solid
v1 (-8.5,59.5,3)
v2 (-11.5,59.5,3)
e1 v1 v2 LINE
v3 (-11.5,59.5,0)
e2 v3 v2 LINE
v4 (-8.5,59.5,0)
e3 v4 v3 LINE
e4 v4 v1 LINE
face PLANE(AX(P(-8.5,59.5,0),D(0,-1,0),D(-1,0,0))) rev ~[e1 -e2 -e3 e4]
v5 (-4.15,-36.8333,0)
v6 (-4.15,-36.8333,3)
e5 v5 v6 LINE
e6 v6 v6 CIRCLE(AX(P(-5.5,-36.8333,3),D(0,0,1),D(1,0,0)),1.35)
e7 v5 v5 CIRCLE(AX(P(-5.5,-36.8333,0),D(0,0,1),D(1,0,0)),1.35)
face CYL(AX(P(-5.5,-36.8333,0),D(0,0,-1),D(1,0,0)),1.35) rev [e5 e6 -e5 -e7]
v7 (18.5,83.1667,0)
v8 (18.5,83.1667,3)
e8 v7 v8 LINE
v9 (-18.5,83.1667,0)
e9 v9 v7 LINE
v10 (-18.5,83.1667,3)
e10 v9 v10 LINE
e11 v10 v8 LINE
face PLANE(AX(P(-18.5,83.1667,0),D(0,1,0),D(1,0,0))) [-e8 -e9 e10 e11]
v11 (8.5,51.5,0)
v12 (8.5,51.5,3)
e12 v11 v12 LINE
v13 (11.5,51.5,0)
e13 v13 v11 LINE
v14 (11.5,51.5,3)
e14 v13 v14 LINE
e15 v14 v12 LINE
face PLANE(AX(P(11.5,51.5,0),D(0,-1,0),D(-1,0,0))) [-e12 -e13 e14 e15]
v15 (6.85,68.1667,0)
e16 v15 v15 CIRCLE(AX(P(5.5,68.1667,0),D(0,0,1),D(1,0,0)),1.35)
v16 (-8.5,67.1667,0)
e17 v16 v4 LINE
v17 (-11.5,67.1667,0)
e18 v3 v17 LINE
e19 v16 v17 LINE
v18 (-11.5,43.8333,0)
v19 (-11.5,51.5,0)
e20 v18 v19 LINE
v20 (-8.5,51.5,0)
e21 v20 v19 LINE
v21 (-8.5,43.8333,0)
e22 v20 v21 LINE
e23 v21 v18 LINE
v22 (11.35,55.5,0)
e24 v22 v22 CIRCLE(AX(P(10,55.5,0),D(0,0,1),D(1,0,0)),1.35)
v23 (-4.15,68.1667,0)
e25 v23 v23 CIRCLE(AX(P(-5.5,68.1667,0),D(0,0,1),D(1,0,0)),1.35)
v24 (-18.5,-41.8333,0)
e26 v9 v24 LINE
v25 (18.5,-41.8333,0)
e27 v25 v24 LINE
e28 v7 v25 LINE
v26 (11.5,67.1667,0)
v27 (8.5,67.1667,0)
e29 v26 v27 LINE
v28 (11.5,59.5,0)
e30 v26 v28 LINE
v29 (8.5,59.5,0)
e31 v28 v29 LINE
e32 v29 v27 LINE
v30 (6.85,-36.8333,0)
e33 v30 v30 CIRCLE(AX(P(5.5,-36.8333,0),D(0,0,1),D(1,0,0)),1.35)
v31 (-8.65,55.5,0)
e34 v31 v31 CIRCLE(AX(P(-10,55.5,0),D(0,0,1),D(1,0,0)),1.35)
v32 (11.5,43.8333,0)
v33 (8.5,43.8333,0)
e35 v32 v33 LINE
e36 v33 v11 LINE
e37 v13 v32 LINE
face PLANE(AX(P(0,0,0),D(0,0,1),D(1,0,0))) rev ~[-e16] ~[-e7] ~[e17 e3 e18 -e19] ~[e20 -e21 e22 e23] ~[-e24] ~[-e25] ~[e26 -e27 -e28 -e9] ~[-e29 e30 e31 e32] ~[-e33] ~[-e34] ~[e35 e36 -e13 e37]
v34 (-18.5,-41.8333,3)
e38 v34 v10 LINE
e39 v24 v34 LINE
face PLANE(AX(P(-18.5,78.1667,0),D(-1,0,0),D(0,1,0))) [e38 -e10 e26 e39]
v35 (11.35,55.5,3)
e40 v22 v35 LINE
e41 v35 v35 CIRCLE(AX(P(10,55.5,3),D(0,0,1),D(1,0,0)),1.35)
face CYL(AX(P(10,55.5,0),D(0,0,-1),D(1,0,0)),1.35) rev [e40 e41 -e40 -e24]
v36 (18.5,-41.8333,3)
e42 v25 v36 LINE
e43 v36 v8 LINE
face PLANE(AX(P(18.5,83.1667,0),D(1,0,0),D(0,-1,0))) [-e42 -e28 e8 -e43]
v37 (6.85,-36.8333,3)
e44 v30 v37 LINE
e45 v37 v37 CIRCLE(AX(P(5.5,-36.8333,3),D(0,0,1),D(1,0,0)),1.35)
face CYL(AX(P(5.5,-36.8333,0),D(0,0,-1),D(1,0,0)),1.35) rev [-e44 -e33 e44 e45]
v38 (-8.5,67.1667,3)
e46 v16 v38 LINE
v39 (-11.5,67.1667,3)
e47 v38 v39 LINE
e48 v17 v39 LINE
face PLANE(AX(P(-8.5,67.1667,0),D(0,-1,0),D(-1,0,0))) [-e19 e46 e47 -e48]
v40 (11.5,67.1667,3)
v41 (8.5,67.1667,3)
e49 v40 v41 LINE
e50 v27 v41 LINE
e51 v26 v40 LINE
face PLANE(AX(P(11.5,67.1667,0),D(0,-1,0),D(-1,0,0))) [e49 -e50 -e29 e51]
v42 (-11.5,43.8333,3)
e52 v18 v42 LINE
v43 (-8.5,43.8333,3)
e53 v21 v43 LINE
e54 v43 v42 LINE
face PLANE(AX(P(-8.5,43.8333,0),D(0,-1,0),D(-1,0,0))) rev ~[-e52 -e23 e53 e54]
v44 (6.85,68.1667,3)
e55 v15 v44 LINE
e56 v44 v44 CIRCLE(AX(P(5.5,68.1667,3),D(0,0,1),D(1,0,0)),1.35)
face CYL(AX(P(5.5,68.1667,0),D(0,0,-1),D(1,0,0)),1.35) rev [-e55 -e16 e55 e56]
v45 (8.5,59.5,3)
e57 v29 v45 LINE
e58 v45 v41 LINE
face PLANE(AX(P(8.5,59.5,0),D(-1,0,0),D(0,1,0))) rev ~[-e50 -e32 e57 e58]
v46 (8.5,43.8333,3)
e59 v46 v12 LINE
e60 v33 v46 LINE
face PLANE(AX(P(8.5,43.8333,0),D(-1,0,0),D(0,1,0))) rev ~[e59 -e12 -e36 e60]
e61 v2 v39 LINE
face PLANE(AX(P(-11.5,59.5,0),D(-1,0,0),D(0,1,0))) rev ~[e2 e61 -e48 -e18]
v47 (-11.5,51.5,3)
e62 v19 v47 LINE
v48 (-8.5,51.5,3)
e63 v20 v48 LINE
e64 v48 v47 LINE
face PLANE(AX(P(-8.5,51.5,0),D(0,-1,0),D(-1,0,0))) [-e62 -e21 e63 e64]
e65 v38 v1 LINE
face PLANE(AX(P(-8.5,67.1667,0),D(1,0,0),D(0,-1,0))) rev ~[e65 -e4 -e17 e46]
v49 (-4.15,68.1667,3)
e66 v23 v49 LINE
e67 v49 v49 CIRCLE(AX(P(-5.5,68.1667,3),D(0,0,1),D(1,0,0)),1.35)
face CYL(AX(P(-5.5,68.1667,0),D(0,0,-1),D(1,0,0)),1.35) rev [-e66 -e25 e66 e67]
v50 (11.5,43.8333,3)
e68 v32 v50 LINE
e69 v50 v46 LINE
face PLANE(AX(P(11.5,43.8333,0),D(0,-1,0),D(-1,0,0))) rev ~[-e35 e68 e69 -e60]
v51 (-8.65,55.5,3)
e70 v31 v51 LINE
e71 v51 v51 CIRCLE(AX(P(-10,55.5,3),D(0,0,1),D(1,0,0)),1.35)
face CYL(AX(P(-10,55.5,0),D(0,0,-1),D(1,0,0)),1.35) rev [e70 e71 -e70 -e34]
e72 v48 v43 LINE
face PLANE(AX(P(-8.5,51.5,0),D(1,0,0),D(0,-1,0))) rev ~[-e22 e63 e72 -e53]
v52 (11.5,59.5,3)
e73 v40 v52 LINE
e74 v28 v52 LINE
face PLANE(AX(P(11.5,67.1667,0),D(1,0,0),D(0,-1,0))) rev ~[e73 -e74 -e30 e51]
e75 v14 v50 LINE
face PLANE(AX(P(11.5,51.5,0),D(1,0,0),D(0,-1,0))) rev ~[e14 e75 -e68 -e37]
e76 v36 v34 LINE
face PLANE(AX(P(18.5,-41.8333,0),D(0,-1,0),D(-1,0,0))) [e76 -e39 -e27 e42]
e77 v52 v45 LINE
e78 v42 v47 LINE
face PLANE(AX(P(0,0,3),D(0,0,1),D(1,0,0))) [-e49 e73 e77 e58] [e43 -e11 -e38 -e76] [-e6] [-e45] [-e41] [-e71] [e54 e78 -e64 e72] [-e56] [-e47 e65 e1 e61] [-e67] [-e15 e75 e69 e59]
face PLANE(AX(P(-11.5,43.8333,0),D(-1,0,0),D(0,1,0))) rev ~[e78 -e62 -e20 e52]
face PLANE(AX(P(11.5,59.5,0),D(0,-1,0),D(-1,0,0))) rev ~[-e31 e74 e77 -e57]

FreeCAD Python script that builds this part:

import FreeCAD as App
import Part
import Sketcher

V = App.Vector
Q = App.Units.Quantity

doc = App.newDocument("Part")
params = doc.addObject("Spreadsheet::Sheet", "Params")
for row, (alias, value) in enumerate([
    ("sketch1_diameter", "2.7 mm"),
    ("sketch1_width", "37 mm"),
    ("sketch1_width2", "3 mm"),
    ("sketch1_height", "125 mm"),
    ("pad1_length", "3 mm"),
], start=1):
    params.set(f"A{row}", alias)
    params.set(f"B{row}", "=" + value)
    params.setAlias(f"B{row}", alias)

body = doc.addObject("PartDesign::Body", "Body")

sketch1 = body.newObject("Sketcher::SketchObject", "Sketch")
sketch1.AttachmentSupport = (doc.getObject("XY_Plane"), [""])
sketch1.MapMode = "FlatFace"
sketch1.addGeometry(Part.LineSegment(V(-18.5, 83.2, 0), V(-18.5, -41.8, 0)), False)
sketch1.addGeometry(Part.LineSegment(V(-18.5, -41.8, 0), V(18.5, -41.8, 0)), False)
sketch1.addGeometry(Part.LineSegment(V(18.5, -41.8, 0), V(18.5, 83.2, 0)), False)
sketch1.addGeometry(Part.LineSegment(V(18.5, 83.2, 0), V(-18.5, 83.2, 0)), False)
sketch1.addGeometry(Part.LineSegment(V(11.5, 67.2, 0), V(11.5, 59.5, 0)), False)
sketch1.addGeometry(Part.LineSegment(V(11.5, 59.5, 0), V(8.5, 59.5, 0)), False)
sketch1.addGeometry(Part.LineSegment(V(8.5, 59.5, 0), V(8.5, 67.2, 0)), False)
sketch1.addGeometry(Part.LineSegment(V(8.5, 67.2, 0), V(11.5, 67.2, 0)), False)
sketch1.addGeometry(Part.Circle(V(-5.5, -36.8, 0), V(0, 0, 1), 1.4), False)
sketch1.addGeometry(Part.Circle(V(5.5, -36.8, 0), V(0, 0, 1), 1.4), False)
sketch1.addGeometry(Part.LineSegment(V(-11.5, 51.5, 0), V(-8.5, 51.5, 0)), False)
sketch1.addGeometry(Part.LineSegment(V(-8.5, 51.5, 0), V(-8.5, 43.8, 0)), False)
sketch1.addGeometry(Part.LineSegment(V(-8.5, 43.8, 0), V(-11.5, 43.8, 0)), False)
sketch1.addGeometry(Part.LineSegment(V(-11.5, 43.8, 0), V(-11.5, 51.5, 0)), False)
sketch1.addGeometry(Part.Circle(V(-10, 55.5, 0), V(0, 0, 1), 1.4), False)
sketch1.addGeometry(Part.LineSegment(V(-11.5, 67.2, 0), V(-8.5, 67.2, 0)), False)
sketch1.addGeometry(Part.LineSegment(V(-8.5, 67.2, 0), V(-8.5, 59.5, 0)), False)
sketch1.addGeometry(Part.LineSegment(V(-8.5, 59.5, 0), V(-11.5, 59.5, 0)), False)
sketch1.addGeometry(Part.LineSegment(V(-11.5, 59.5, 0), V(-11.5, 67.2, 0)), False)
sketch1.addGeometry(Part.Circle(V(-5.5, 68.2, 0), V(0, 0, 1), 1.4), False)
sketch1.addGeometry(Part.LineSegment(V(8.5, 51.5, 0), V(11.5, 51.5, 0)), False)
sketch1.addGeometry(Part.LineSegment(V(11.5, 51.5, 0), V(11.5, 43.8, 0)), False)
sketch1.addGeometry(Part.LineSegment(V(11.5, 43.8, 0), V(8.5, 43.8, 0)), False)
sketch1.addGeometry(Part.LineSegment(V(8.5, 43.8, 0), V(8.5, 51.5, 0)), False)
sketch1.addGeometry(Part.Circle(V(5.5, 68.2, 0), V(0, 0, 1), 1.4), False)
sketch1.addGeometry(Part.Circle(V(10, 55.5, 0), V(0, 0, 1), 1.4), False)
sketch1.addConstraint(Sketcher.Constraint("Coincident", 0, 2, 1, 1))
sketch1.addConstraint(Sketcher.Constraint("Coincident", 1, 2, 2, 1))
sketch1.addConstraint(Sketcher.Constraint("Coincident", 2, 2, 3, 1))
sketch1.addConstraint(Sketcher.Constraint("Coincident", 3, 2, 0, 1))
sketch1.addConstraint(Sketcher.Constraint("Coincident", 4, 2, 5, 1))
sketch1.addConstraint(Sketcher.Constraint("Coincident", 5, 2, 6, 1))
sketch1.addConstraint(Sketcher.Constraint("Coincident", 6, 2, 7, 1))
sketch1.addConstraint(Sketcher.Constraint("Coincident", 7, 2, 4, 1))
sketch1.addConstraint(Sketcher.Constraint("Coincident", 10, 2, 11, 1))
sketch1.addConstraint(Sketcher.Constraint("Coincident", 11, 2, 12, 1))
sketch1.addConstraint(Sketcher.Constraint("Coincident", 12, 2, 13, 1))
sketch1.addConstraint(Sketcher.Constraint("Coincident", 13, 2, 10, 1))
sketch1.addConstraint(Sketcher.Constraint("Coincident", 15, 2, 16, 1))
sketch1.addConstraint(Sketcher.Constraint("Coincident", 16, 2, 17, 1))
sketch1.addConstraint(Sketcher.Constraint("Coincident", 17, 2, 18, 1))
sketch1.addConstraint(Sketcher.Constraint("Coincident", 18, 2, 15, 1))
sketch1.addConstraint(Sketcher.Constraint("Coincident", 20, 2, 21, 1))
sketch1.addConstraint(Sketcher.Constraint("Coincident", 21, 2, 22, 1))
sketch1.addConstraint(Sketcher.Constraint("Coincident", 22, 2, 23, 1))
sketch1.addConstraint(Sketcher.Constraint("Coincident", 23, 2, 20, 1))
sketch1.addConstraint(Sketcher.Constraint("Vertical", 0))
sketch1.addConstraint(Sketcher.Constraint("Horizontal", 1))
sketch1.addConstraint(Sketcher.Constraint("Vertical", 2))
sketch1.addConstraint(Sketcher.Constraint("Horizontal", 3))
sketch1.addConstraint(Sketcher.Constraint("Vertical", 4))
sketch1.addConstraint(Sketcher.Constraint("Horizontal", 5))
sketch1.addConstraint(Sketcher.Constraint("Vertical", 6))
sketch1.addConstraint(Sketcher.Constraint("Horizontal", 7))
sketch1.addConstraint(Sketcher.Constraint("Horizontal", 10))
sketch1.addConstraint(Sketcher.Constraint("Vertical", 11))
sketch1.addConstraint(Sketcher.Constraint("Horizontal", 12))
sketch1.addConstraint(Sketcher.Constraint("Vertical", 13))
sketch1.addConstraint(Sketcher.Constraint("Horizontal", 15))
sketch1.addConstraint(Sketcher.Constraint("Vertical", 16))
sketch1.addConstraint(Sketcher.Constraint("Horizontal", 17))
sketch1.addConstraint(Sketcher.Constraint("Vertical", 18))
sketch1.addConstraint(Sketcher.Constraint("Horizontal", 20))
sketch1.addConstraint(Sketcher.Constraint("Vertical", 21))
sketch1.addConstraint(Sketcher.Constraint("Horizontal", 22))
sketch1.addConstraint(Sketcher.Constraint("Vertical", 23))
sketch1.addConstraint(Sketcher.Constraint("Equal", 8, 9))
sketch1.addConstraint(Sketcher.Constraint("Equal", 9, 14))
sketch1.addConstraint(Sketcher.Constraint("Equal", 14, 19))
sketch1.addConstraint(Sketcher.Constraint("Equal", 19, 24))
sketch1.addConstraint(Sketcher.Constraint("Equal", 24, 25))
sketch1.addConstraint(Sketcher.Constraint("Symmetric", 8, 3, 9, 3, -2))
sketch1.addConstraint(Sketcher.Constraint("Symmetric", 19, 3, 24, 3, -2))
sketch1.addConstraint(Sketcher.Constraint("Symmetric", 14, 3, 25, 3, -2))
sketch1.addConstraint(Sketcher.Constraint("Symmetric", 6, 2, 15, 2, -2))
sketch1.addConstraint(Sketcher.Constraint("Symmetric", 4, 2, 17, 2, -2))
sketch1.addConstraint(Sketcher.Constraint("Symmetric", 13, 2, 20, 2, -2))
sketch1.addConstraint(Sketcher.Constraint("Symmetric", 11, 2, 22, 2, -2))
sketch1.addConstraint(Sketcher.Constraint("Vertical", 8, 3, 19, 3))
sketch1.addConstraint(Sketcher.Constraint("Vertical", 11, 2, 15, 2))
sketch1.addConstraint(Sketcher.Constraint("Vertical", 13, 2, 17, 2))
sketch1.addConstraint(Sketcher.Constraint("Equal", 6, 11))
sketch1.addConstraint(Sketcher.Constraint("Diameter", 8, Q("2.7 mm")))
sketch1.addConstraint(Sketcher.Constraint("DistanceX", 1, 1, 1, 2, Q("37 mm")))
sketch1.addConstraint(Sketcher.Constraint("DistanceX", 8, 3, 9, 3, Q("11 mm")))
sketch1.addConstraint(Sketcher.Constraint("DistanceX", 0, 2, 8, 3, Q("13 mm")))
sketch1.addConstraint(Sketcher.Constraint("DistanceY", 9, 3, 2, 2, Q("120 mm")))
sketch1.addConstraint(Sketcher.Constraint("DistanceY", 6, 2, 24, 3, Q("1 mm")))
sketch1.addConstraint(Sketcher.Constraint("DistanceX", 5, 2, 5, 1, Q("3 mm")))
sketch1.addConstraint(Sketcher.Constraint("DistanceY", 0, 2, 0, 1, Q("125 mm")))
sketch1.addConstraint(Sketcher.Constraint("DistanceX", 14, 3, -1, 1, Q("10 mm")))
sketch1.addConstraint(Sketcher.Constraint("DistanceY", 8, 3, 19, 3, Q("105 mm")))
sketch1.addConstraint(Sketcher.Constraint("DistanceY", 25, 3, 4, 2, Q("4 mm")))
sketch1.addConstraint(Sketcher.Constraint("DistanceX", 24, 3, 4, 2, Q("6 mm")))
sketch1.addConstraint(Sketcher.Constraint("DistanceY", 10, 2, 14, 3, Q("4 mm")))
sketch1.addConstraint(Sketcher.Constraint("DistanceY", -1, 1, 14, 3, Q("55.5 mm")))
sketch1.addConstraint(Sketcher.Constraint("DistanceY", 4, 2, 4, 1, Q("7.6667 mm")))
sketch1.setExpression("Constraints[56]", "Params.sketch1_diameter")
sketch1.setExpression("Constraints[57]", "Params.sketch1_width")
sketch1.setExpression("Constraints[62]", "Params.sketch1_width2")
sketch1.setExpression("Constraints[63]", "Params.sketch1_height")
pad1 = body.newObject("PartDesign::Pad", "Pad")
pad1.Profile = sketch1
pad1.setExpression("Length", "Params.pad1_length")

doc.recompute()
